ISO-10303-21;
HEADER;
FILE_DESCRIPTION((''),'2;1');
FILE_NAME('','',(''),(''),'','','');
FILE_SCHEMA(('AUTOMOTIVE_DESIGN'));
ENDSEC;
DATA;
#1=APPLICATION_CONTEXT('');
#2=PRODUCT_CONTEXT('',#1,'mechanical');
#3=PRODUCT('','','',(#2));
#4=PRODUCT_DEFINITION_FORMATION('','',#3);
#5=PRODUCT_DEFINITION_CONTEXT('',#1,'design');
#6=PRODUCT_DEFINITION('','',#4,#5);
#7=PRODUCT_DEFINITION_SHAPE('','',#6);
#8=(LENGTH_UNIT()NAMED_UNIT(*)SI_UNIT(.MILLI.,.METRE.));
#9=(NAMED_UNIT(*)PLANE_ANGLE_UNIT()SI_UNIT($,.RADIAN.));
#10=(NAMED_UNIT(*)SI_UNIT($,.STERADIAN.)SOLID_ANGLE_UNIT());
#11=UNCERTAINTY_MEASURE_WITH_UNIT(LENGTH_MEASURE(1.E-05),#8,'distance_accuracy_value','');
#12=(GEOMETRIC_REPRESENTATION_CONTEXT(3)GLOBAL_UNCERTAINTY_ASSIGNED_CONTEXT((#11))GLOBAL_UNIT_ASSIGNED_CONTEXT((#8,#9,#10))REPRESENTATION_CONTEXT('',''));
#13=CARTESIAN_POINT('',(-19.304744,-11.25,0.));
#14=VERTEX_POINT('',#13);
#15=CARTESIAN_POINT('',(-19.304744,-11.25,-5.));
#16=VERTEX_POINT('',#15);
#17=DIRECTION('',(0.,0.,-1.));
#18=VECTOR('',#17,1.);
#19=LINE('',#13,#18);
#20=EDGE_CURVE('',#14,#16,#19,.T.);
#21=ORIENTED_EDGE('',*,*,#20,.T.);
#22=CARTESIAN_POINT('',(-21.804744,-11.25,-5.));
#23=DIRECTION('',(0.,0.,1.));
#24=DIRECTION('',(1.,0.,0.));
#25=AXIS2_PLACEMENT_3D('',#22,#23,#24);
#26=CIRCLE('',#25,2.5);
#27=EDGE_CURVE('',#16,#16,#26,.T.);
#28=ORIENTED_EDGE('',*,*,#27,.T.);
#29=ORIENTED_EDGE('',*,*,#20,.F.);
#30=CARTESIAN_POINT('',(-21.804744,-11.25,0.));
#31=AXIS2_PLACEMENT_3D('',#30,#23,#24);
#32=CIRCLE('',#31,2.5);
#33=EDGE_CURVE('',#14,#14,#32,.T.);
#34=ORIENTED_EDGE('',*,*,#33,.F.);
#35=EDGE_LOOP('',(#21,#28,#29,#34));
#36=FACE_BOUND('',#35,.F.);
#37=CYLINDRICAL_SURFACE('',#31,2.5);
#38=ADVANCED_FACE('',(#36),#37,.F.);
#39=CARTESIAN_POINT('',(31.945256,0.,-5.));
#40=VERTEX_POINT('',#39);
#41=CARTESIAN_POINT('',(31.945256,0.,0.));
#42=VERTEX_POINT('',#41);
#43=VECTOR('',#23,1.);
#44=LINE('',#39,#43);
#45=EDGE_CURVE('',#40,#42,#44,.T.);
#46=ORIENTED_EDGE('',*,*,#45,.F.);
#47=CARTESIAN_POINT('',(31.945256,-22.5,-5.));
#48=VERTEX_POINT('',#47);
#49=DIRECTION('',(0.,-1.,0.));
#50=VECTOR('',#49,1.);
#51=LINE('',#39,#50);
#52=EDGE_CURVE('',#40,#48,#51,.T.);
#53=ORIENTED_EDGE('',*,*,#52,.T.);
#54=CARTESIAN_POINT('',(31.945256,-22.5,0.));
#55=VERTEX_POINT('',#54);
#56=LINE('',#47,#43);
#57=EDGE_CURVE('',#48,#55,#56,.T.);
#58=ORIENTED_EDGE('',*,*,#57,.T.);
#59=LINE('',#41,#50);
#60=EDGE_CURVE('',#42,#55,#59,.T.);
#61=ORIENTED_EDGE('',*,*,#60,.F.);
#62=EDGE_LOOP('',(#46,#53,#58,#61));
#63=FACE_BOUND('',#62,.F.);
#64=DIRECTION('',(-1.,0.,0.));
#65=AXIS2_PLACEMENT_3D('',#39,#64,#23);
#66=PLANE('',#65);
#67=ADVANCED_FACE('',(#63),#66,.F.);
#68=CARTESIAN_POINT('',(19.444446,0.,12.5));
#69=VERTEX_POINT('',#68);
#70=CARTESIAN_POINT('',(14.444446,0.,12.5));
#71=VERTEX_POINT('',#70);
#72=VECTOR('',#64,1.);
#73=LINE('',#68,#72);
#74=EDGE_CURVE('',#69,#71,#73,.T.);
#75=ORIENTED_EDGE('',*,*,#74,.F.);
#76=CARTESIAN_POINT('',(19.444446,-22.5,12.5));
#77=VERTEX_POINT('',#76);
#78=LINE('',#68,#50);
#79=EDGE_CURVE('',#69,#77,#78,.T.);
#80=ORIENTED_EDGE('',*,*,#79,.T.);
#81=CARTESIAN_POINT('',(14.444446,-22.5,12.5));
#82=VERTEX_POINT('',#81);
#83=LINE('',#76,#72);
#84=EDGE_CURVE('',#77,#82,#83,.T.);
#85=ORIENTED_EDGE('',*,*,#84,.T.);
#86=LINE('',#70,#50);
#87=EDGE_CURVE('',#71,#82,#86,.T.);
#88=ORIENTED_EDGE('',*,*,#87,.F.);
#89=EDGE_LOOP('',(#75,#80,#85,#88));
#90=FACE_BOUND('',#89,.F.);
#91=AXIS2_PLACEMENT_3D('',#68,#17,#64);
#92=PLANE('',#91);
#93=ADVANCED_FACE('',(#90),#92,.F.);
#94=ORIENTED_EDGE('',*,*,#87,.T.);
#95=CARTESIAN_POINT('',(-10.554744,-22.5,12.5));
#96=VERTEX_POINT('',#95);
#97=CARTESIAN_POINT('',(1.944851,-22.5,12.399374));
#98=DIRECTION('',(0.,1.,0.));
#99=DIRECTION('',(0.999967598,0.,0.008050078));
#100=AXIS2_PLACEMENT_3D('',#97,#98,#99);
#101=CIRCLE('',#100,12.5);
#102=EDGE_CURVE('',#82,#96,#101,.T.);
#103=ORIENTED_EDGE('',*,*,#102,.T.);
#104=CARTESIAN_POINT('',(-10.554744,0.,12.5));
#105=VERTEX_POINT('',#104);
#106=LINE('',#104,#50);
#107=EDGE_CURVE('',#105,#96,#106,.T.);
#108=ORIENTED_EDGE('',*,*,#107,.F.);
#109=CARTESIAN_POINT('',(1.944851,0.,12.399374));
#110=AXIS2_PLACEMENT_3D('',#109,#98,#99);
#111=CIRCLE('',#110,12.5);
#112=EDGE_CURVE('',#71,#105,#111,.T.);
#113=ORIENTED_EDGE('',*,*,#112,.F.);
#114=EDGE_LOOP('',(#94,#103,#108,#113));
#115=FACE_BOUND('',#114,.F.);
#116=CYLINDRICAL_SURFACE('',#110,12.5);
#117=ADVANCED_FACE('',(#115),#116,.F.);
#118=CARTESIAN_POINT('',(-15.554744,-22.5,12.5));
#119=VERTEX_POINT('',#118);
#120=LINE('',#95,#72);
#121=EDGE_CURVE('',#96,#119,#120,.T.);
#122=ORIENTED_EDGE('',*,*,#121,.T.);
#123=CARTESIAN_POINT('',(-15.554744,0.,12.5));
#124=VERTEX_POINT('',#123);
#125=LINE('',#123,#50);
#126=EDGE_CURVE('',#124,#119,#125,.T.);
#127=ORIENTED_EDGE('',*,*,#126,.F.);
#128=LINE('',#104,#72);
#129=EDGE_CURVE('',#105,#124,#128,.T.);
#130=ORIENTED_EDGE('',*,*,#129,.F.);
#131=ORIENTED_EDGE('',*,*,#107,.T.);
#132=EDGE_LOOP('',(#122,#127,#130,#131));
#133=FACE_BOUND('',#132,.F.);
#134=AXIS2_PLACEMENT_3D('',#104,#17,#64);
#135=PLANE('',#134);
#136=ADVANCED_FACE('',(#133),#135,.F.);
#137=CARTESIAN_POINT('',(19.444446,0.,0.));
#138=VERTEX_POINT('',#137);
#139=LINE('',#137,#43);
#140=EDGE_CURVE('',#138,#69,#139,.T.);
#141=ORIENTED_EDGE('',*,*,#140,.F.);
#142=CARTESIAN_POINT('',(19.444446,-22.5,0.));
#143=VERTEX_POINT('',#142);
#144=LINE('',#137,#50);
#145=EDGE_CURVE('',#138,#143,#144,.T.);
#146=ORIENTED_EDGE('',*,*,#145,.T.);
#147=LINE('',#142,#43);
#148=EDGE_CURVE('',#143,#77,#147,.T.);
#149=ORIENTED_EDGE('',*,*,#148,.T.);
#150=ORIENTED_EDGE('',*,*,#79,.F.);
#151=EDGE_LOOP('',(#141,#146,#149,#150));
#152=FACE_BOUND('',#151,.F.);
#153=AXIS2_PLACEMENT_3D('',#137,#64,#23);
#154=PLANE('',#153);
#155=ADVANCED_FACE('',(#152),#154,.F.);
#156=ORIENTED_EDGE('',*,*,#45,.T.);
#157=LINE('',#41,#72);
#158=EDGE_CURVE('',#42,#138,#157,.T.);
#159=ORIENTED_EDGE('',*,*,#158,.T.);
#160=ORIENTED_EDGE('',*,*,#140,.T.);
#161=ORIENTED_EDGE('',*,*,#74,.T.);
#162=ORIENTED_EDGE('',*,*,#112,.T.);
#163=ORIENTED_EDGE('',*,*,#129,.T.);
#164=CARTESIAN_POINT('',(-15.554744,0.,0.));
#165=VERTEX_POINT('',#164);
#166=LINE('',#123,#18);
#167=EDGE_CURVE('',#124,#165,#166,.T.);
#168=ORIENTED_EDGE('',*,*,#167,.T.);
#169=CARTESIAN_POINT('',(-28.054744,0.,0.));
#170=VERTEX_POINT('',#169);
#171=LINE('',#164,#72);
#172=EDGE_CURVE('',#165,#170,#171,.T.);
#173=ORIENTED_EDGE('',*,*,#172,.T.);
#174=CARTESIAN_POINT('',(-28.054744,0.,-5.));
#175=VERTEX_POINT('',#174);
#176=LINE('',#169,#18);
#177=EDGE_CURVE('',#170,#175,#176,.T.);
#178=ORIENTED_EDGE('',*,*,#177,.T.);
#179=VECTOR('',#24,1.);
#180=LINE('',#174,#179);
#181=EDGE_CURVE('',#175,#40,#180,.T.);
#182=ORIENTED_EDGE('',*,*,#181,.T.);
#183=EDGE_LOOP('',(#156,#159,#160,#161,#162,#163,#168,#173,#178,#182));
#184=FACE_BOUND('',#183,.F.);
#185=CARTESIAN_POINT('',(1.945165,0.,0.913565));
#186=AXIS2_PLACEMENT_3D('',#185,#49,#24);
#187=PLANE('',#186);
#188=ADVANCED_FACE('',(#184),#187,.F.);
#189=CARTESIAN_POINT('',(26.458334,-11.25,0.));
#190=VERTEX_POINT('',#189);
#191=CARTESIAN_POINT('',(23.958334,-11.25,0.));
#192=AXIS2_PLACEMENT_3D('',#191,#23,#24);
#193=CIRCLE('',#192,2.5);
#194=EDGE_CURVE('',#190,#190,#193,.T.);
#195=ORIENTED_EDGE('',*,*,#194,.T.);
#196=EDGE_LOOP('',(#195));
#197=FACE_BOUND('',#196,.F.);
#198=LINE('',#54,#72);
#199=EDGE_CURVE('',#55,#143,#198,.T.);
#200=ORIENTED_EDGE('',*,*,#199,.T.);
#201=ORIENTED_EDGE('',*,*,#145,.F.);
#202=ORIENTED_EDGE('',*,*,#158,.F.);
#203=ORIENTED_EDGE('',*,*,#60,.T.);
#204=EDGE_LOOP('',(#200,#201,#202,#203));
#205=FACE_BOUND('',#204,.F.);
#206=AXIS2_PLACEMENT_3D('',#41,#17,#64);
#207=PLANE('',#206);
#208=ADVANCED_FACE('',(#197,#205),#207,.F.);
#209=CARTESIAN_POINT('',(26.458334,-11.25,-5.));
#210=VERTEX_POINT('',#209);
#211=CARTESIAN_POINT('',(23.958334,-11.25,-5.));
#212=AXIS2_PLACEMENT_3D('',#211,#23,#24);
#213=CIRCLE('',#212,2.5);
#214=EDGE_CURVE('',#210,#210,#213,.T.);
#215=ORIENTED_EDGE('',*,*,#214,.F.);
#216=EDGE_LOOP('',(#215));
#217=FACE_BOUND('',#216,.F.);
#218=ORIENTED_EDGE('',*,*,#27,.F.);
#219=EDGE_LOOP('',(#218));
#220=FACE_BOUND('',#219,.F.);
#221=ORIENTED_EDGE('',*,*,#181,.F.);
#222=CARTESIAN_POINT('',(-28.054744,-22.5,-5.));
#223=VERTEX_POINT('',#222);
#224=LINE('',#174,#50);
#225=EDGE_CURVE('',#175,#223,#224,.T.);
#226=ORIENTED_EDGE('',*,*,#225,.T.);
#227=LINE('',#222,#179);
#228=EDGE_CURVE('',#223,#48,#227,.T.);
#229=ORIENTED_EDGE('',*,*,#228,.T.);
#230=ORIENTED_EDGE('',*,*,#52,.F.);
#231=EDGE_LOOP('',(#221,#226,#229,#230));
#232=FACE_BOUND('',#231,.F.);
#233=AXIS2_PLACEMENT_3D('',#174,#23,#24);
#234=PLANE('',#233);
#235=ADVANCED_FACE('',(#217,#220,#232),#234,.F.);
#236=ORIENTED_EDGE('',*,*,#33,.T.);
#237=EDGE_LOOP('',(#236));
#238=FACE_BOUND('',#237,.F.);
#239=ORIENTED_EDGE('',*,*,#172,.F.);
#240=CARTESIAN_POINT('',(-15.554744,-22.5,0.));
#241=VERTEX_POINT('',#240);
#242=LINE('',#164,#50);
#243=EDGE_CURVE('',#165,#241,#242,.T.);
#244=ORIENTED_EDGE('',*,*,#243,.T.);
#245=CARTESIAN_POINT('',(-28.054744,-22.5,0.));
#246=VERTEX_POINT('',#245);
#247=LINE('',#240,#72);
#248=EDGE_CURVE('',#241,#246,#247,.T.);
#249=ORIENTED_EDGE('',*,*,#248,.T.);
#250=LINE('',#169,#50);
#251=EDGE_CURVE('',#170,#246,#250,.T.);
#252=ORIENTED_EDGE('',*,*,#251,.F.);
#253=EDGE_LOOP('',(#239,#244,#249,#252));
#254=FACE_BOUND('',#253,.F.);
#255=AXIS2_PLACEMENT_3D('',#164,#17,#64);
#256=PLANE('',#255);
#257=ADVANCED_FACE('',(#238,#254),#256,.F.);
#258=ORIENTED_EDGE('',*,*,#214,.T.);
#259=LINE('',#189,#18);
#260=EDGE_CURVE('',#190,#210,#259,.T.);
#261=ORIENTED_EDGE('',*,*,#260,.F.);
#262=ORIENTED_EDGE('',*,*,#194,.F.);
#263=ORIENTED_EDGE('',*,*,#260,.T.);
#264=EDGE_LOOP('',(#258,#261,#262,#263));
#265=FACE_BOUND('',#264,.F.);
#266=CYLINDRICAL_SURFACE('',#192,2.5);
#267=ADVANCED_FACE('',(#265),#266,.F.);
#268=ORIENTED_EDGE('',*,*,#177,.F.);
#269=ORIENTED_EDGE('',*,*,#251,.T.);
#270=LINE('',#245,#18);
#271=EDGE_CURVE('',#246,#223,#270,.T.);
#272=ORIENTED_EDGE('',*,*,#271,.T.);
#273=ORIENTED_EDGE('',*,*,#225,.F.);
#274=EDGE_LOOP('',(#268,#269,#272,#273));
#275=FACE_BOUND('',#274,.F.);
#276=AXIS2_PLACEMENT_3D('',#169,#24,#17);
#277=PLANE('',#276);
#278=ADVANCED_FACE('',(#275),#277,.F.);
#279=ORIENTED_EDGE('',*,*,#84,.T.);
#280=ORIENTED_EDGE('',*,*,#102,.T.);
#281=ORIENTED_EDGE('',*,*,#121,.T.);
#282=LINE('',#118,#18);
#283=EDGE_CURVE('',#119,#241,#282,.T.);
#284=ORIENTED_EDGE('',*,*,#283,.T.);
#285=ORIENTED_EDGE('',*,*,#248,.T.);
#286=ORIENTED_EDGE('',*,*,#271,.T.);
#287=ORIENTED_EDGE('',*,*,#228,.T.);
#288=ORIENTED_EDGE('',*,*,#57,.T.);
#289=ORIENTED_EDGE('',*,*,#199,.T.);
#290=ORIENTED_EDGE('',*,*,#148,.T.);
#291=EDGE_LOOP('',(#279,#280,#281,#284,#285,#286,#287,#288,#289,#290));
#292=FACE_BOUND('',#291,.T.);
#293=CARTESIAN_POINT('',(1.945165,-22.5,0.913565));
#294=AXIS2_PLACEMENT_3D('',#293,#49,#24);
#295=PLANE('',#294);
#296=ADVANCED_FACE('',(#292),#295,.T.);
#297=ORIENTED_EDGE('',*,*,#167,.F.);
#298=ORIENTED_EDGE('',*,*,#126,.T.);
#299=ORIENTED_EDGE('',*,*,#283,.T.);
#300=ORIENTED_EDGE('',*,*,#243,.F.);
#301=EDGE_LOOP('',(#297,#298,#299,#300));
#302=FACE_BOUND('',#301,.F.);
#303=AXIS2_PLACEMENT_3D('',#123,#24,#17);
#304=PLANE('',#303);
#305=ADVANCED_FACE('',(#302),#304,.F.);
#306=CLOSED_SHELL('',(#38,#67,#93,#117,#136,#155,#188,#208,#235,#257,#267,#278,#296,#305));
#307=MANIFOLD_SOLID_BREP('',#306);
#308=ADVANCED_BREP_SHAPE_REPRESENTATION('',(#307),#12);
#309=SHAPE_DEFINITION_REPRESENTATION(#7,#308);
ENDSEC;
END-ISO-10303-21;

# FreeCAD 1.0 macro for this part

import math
import FreeCAD as App
import Part
import Sketcher

V = App.Vector
Q = App.Units.Quantity

doc = App.newDocument("Part")
body = doc.addObject("PartDesign::Body", "Body")

sketch1 = body.newObject("Sketcher::SketchObject", "Sketch")
sketch1.AttachmentSupport = (doc.getObject("XZ_Plane"), [""])
sketch1.MapMode = "FlatFace"
sketch1.addGeometry([
    Part.LineSegment(V(-28.054744, -5, 0), V(31.945256, -5, 0)),
    Part.LineSegment(V(31.945256, -5, 0), V(31.945256, 0, 0)),
    Part.LineSegment(V(31.945256, 0, 0), V(19.444446, 0, 0)),
    Part.LineSegment(V(19.444446, 0, 0), V(19.444446, 12.5, 0)),
    Part.LineSegment(V(19.444446, 12.5, 0), V(14.444446, 12.5, 0)),
    Part.ArcOfCircle(Part.Circle(V(1.944851, 12.399374, 0), V(0, 0, 1), 12.5), math.radians(179.53876), math.radians(360.46124)),
    Part.LineSegment(V(-10.554744, 12.5, 0), V(-15.554744, 12.5, 0)),
    Part.LineSegment(V(-15.554744, 12.5, 0), V(-15.554744, 0, 0)),
    Part.LineSegment(V(-15.554744, 0, 0), V(-28.054744, 0, 0)),
    Part.LineSegment(V(-28.054744, 0, 0), V(-28.054744, -5, 0)),
], False)
sketch1.addConstraint([
    Sketcher.Constraint("Coincident", 0, 2, 1, 1),
    Sketcher.Constraint("Coincident", 1, 2, 2, 1),
    Sketcher.Constraint("Coincident", 2, 2, 3, 1),
    Sketcher.Constraint("Coincident", 3, 2, 4, 1),
    Sketcher.Constraint("Coincident", 4, 2, 5, 2),
    Sketcher.Constraint("Coincident", 5, 1, 6, 1),
    Sketcher.Constraint("Coincident", 6, 2, 7, 1),
    Sketcher.Constraint("Coincident", 7, 2, 8, 1),
    Sketcher.Constraint("Coincident", 8, 2, 9, 1),
    Sketcher.Constraint("Coincident", 9, 2, 0, 1),
    Sketcher.Constraint("Horizontal", 0),
    Sketcher.Constraint("Vertical", 1),
    Sketcher.Constraint("Horizontal", 2),
    Sketcher.Constraint("Vertical", 3),
    Sketcher.Constraint("Horizontal", 4),
    Sketcher.Constraint("Horizontal", 6),
    Sketcher.Constraint("Vertical", 7),
    Sketcher.Constraint("Horizontal", 8),
    Sketcher.Constraint("Vertical", 9),
    Sketcher.Constraint("PointOnObject", 1, 2, -1),
    Sketcher.Constraint("PointOnObject", 7, 2, -1),
    Sketcher.Constraint("Horizontal", 4, 2, 5, 1),
    Sketcher.Constraint("Equal", 4, 6),
    Sketcher.Constraint("Equal", 6, 1),
    Sketcher.Constraint("Equal", 8, 3),
    Sketcher.Constraint("Radius", 5, Q("12.5 mm")),
    Sketcher.Constraint("DistanceX", 0, 1, 0, 2, Q("60 mm")),
    Sketcher.Constraint("DistanceX", 4, 2, 4, 1, Q("5 mm")),
    Sketcher.Constraint("DistanceX", 8, 2, 8, 1, Q("12.5 mm")),
    Sketcher.Constraint("DistanceX", 2, 2, 2, 1, Q("12.50081 mm")),
    Sketcher.Constraint("DistanceX", -1, 1, 5, 3, Q("1.944851 mm")),
])
pad1 = body.newObject("PartDesign::Pad", "Pad")
pad1.Profile = sketch1
pad1.Length = 22.5

sketch2 = body.newObject("Sketcher::SketchObject", "Sketch001")
sketch2.AttachmentSupport = (doc.getObject("XY_Plane"), [""])
sketch2.MapMode = "FlatFace"
sketch2.addGeometry(Part.Circle(V(24, -11.2, 0), V(0, 0, 1), 2.5), False)
sketch2.addConstraint([
    Sketcher.Constraint("Diameter", 0, Q("5 mm")),
    Sketcher.Constraint("DistanceY", 0, 3, -1, 1, Q("11.25 mm")),
    Sketcher.Constraint("DistanceX", -1, 1, 0, 3, Q("23.958334 mm")),
])
pocket1 = body.newObject("PartDesign::Pocket", "Pocket")
pocket1.Profile = sketch2
pocket1.Type = "ThroughAll"

sketch3 = body.newObject("Sketcher::SketchObject", "Sketch002")
sketch3.AttachmentSupport = (doc.getObject("XY_Plane"), [""])
sketch3.MapMode = "FlatFace"
sketch3.addGeometry(Part.Circle(V(-21.8, -11.2, 0), V(0, 0, 1), 2.5), False)
sketch3.addConstraint([
    Sketcher.Constraint("Diameter", 0, Q("5 mm")),
    Sketcher.Constraint("DistanceY", 0, 3, -1, 1, Q("11.25 mm")),
    Sketcher.Constraint("DistanceX", 0, 3, -1, 1, Q("21.804744 mm")),
])
pocket2 = body.newObject("PartDesign::Pocket", "Pocket001")
pocket2.Profile = sketch3
pocket2.Length = 25

doc.recompute()
